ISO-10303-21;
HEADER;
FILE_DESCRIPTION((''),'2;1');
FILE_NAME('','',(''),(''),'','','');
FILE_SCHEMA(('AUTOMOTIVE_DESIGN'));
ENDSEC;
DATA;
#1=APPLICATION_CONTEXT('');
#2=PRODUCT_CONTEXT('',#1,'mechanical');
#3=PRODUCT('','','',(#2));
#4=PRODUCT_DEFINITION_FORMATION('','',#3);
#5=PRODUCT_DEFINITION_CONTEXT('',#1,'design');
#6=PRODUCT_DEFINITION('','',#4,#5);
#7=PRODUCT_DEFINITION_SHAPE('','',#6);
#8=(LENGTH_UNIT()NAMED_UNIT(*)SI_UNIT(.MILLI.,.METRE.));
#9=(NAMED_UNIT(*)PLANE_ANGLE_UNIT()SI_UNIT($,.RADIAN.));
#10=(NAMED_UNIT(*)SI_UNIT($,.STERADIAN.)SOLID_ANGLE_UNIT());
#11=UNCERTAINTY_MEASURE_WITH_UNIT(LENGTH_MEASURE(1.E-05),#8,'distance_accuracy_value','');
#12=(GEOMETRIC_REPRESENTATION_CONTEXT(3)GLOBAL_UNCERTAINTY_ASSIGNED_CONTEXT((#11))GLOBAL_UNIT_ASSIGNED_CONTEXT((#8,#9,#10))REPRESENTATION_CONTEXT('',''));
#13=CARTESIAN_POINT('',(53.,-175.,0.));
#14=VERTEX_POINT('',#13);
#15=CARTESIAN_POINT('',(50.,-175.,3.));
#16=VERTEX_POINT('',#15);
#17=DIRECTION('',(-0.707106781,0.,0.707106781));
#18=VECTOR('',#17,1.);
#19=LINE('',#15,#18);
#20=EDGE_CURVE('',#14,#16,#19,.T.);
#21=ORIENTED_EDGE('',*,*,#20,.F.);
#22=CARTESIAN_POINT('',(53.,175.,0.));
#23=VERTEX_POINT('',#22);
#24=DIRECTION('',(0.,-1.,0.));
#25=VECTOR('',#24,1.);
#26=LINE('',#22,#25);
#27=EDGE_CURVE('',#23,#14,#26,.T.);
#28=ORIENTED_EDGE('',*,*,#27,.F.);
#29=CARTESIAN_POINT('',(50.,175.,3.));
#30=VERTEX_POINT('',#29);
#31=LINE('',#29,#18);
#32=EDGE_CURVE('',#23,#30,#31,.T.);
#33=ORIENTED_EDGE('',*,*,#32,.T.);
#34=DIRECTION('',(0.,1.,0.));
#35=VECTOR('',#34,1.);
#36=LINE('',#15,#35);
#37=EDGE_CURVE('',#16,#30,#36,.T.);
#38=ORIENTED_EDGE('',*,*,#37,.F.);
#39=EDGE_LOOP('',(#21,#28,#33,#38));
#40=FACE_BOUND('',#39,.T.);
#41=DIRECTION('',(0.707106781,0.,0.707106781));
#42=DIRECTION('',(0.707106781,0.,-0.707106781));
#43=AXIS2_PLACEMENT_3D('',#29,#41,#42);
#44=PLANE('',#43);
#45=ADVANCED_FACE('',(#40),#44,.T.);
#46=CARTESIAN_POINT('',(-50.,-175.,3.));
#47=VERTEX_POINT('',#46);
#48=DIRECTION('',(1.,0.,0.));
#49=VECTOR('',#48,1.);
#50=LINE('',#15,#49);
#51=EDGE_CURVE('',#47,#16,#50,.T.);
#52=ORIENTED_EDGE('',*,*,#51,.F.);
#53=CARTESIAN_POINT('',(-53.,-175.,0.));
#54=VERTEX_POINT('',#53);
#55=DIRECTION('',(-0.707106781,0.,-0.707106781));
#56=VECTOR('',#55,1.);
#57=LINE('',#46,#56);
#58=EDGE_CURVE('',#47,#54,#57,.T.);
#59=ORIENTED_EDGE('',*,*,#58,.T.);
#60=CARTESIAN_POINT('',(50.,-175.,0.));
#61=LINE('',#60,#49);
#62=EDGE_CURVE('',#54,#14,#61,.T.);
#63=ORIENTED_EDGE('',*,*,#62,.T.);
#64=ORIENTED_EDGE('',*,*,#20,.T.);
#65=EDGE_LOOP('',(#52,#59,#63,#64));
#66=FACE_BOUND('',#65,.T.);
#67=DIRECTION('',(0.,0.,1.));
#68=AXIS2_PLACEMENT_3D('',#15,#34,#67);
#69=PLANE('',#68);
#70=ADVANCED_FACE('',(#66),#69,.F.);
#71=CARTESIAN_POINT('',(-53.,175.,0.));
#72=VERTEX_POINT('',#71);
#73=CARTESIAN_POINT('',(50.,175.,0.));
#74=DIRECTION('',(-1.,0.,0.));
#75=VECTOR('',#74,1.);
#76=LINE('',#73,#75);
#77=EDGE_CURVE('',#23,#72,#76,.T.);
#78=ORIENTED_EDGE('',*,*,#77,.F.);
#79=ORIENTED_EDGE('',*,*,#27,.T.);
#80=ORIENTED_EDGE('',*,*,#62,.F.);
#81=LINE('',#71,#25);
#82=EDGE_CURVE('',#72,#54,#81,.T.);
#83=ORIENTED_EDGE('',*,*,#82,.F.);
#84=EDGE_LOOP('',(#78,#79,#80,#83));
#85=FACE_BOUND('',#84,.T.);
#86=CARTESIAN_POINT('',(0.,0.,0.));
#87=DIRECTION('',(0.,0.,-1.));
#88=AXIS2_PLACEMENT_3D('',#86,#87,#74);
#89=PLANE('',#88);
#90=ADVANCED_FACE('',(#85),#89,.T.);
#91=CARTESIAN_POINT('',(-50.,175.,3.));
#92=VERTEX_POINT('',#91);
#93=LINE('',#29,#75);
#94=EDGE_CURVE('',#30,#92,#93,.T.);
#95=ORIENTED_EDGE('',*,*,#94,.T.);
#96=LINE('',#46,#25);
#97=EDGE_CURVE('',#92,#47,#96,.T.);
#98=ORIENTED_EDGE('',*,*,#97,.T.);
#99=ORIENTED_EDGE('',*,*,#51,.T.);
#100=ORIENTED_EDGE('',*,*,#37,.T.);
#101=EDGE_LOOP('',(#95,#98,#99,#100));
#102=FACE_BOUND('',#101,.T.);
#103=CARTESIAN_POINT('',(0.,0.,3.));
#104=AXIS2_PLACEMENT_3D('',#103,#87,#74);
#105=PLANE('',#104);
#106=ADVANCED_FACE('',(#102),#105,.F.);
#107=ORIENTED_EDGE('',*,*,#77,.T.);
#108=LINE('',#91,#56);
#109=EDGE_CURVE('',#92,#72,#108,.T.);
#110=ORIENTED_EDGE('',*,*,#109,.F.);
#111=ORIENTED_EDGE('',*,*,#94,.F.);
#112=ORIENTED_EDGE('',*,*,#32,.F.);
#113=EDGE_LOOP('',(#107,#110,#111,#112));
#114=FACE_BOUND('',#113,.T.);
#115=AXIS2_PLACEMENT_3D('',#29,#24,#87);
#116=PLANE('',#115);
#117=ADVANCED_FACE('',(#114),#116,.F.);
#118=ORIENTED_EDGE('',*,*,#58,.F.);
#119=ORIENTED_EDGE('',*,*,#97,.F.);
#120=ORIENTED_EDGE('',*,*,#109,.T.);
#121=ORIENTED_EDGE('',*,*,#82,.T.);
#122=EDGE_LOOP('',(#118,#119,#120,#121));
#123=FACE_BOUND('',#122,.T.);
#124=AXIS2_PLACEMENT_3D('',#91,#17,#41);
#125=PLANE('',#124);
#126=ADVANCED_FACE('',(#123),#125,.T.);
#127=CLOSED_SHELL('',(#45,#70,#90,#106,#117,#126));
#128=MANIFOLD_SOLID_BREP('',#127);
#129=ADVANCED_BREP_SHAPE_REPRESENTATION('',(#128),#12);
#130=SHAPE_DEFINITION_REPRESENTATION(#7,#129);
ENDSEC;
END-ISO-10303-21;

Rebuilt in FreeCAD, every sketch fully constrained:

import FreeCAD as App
import Part
import Sketcher
from FreeCAD import Vector
Q = App.Units.Quantity


def add_polygon(sketch, points):
    """Adds a closed chain of lines whose ends are joined by coincident constraints."""
    first, n = sketch.GeometryCount, len(points)
    for a, b in zip(points, points[1:] + points[:1]):
        sketch.addGeometry(Part.LineSegment(App.Vector(*a, 0), App.Vector(*b, 0)), False)
    for i in range(n):
        sketch.addConstraint(Sketcher.Constraint("Coincident", first + i, 2, first + (i + 1) % n, 1))

doc = App.newDocument("Part")
body = doc.addObject("PartDesign::Body", "Body")

# Sketch on XY plane
sketch1 = body.newObject("Sketcher::SketchObject", "Sketch")
sketch1.AttachmentSupport = (doc.getObject("XY_Plane"), [""])
sketch1.MapMode = "FlatFace"
add_polygon(sketch1, [(-50, -175), (50, -175), (50, 175), (-50, 175)])  # lines 0-3
sketch1.addConstraint([
    Sketcher.Constraint("Horizontal", 0),
    Sketcher.Constraint("Vertical", 1),
    Sketcher.Constraint("Horizontal", 2),
    Sketcher.Constraint("Vertical", 3),
    Sketcher.Constraint("Symmetric", 0, 2, 2, 2, -1, 1),
    Sketcher.Constraint("DistanceX", 0, 1, 0, 2, Q("100 mm")),
    Sketcher.Constraint("DistanceY", 1, 1, 1, 2, Q("350 mm")),
])
pad1 = body.newObject("PartDesign::Pad", "Pad")
pad1.Profile = sketch1
pad1.Length = 3

# Sketch on XZ plane
sketch2 = body.newObject("Sketcher::SketchObject", "Sketch001")
sketch2.AttachmentSupport = (doc.getObject("XZ_Plane"), [""])
sketch2.MapMode = "FlatFace"
sketch2.AttachmentOffset = App.Placement(Vector(0, 0, 175), App.Rotation())
add_polygon(sketch2, [(-50, 0), (-50, 3), (-53, 0)])  # lines 0-2
add_polygon(sketch2, [(53, 0), (50, 3), (50, 0)])  # lines 3-5
sketch2.addConstraint([
    Sketcher.Constraint("Vertical", 0),
    Sketcher.Constraint("Horizontal", 2),
    Sketcher.Constraint("Vertical", 4),
    Sketcher.Constraint("Horizontal", 5),
    Sketcher.Constraint("Symmetric", 2, 2, 4, 2, -1, 1),
    Sketcher.Constraint("Symmetric", 1, 2, 5, 2, -2),
    Sketcher.Constraint("Perpendicular", 1, 3),
    Sketcher.Constraint("Horizontal", 0, 2, 3, 2),
    Sketcher.Constraint("DistanceX", 2, 1, 2, 2, Q("3 mm")),
    Sketcher.Constraint("DistanceX", 0, 2, -1, 1, Q("50 mm")),
])
pad2 = body.newObject("PartDesign::Pad", "Pad001")
pad2.Profile = sketch2
pad2.Type = "UpToLast"
pad2.Reversed = True

doc.recompute()
